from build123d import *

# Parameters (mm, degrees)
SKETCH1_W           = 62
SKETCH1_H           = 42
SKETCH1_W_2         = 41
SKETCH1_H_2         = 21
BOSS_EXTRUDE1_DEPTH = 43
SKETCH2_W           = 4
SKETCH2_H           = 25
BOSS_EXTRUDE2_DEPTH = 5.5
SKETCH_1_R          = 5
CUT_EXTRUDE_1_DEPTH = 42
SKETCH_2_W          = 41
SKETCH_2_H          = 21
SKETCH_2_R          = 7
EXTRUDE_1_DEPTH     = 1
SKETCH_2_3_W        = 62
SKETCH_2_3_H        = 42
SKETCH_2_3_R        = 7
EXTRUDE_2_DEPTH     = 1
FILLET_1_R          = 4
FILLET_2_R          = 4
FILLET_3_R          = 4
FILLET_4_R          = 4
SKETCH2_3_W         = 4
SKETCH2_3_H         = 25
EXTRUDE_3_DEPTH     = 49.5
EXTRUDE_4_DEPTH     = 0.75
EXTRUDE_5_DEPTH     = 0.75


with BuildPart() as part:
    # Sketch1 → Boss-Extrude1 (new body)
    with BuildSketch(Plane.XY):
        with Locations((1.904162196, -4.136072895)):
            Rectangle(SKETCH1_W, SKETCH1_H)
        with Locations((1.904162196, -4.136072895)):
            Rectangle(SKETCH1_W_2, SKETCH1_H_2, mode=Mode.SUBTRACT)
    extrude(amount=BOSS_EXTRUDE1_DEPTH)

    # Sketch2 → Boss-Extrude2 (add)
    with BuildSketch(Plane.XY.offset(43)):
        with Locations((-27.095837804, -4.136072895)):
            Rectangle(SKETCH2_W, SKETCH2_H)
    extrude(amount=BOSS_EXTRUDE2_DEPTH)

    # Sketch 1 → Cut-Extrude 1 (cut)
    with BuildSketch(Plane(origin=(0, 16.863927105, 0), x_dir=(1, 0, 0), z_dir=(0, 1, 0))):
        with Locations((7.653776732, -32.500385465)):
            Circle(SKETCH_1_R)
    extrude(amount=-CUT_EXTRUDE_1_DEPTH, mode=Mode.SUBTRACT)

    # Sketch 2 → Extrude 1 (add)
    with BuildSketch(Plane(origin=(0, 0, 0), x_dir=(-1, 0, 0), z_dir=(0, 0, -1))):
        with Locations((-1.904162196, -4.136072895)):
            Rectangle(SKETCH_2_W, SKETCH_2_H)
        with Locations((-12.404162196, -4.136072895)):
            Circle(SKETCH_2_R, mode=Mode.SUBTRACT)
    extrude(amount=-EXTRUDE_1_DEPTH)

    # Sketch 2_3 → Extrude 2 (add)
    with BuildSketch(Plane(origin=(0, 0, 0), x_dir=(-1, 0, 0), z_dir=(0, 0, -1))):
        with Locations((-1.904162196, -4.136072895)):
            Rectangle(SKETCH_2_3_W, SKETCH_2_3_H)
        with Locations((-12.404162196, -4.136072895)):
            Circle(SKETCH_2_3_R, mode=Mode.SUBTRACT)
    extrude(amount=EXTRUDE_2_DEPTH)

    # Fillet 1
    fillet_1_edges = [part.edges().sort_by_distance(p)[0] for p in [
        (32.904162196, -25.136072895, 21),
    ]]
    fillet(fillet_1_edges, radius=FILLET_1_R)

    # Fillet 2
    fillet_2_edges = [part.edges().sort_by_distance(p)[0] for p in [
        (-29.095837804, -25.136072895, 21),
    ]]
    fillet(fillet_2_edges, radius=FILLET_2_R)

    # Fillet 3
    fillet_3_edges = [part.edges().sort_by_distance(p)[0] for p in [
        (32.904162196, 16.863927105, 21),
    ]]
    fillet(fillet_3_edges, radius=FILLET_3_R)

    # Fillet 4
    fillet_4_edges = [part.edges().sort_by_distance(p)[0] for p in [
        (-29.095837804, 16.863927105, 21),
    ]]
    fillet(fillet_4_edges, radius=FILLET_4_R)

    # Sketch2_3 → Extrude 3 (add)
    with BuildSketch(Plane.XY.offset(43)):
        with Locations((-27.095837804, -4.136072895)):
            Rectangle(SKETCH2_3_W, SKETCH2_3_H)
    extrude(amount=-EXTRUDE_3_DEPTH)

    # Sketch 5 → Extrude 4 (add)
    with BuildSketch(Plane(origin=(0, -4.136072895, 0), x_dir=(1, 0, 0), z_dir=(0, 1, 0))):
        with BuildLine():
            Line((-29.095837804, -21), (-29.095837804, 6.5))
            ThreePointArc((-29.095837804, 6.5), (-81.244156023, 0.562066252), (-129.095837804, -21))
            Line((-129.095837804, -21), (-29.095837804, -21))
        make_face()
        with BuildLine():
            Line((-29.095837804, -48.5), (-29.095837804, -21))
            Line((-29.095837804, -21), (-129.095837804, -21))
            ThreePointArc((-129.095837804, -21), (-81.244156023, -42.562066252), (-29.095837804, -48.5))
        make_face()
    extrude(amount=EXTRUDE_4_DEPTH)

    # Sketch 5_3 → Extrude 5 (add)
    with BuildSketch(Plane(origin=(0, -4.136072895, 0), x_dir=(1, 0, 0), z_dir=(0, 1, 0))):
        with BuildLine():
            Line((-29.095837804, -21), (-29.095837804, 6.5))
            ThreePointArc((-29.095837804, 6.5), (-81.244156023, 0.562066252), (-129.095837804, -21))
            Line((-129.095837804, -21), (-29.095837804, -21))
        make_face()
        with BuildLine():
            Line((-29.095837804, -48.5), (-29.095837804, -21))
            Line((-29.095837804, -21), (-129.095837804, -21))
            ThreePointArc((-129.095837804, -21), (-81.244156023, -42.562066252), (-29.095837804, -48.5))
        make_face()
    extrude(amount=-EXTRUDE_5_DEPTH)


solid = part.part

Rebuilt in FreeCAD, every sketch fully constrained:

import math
import FreeCAD as App
import Part
import Sketcher

V = App.Vector


def edges_at(feature, points):
    """Names of the edges that pass closest to the given points."""
    edges = feature.Shape.Edges
    near = lambda p: min(range(len(edges)), key=lambda i: edges[i].distToShape(Part.Vertex(*p))[0])
    return sorted({f"Edge{near(p) + 1}" for p in points})

doc = App.newDocument("Part")
body = doc.addObject("PartDesign::Body", "Body")

# Sketch on XY plane
sketch1 = body.newObject("Sketcher::SketchObject", "Sketch")
sketch1.AttachmentSupport = (doc.getObject("XY_Plane"), [""])
sketch1.MapMode = "FlatFace"
sketch1.addGeometry([
    Part.LineSegment(V(-29, 17, 0), V(-29, -25, 0)),  # 0
    Part.LineSegment(V(-29, -25, 0), V(33, -25, 0)),  # 1
    Part.LineSegment(V(33, -25, 0), V(33, 17, 0)),  # 2
    Part.LineSegment(V(33, 17, 0), V(-29, 17, 0)),  # 3
    Part.LineSegment(V(22, -15, 0), V(-19, -15, 0)),  # 4
    Part.LineSegment(V(-19, -15, 0), V(-19, 6, 0)),  # 5
    Part.LineSegment(V(-19, 6, 0), V(22, 6, 0)),  # 6
    Part.LineSegment(V(22, 6, 0), V(22, -15, 0)),  # 7
], False)
sketch1.addConstraint([
    Sketcher.Constraint("Coincident", 0, 2, 1, 1),
    Sketcher.Constraint("Coincident", 1, 2, 2, 1),
    Sketcher.Constraint("Coincident", 2, 2, 3, 1),
    Sketcher.Constraint("Coincident", 3, 2, 0, 1),
    Sketcher.Constraint("Coincident", 4, 2, 5, 1),
    Sketcher.Constraint("Coincident", 5, 2, 6, 1),
    Sketcher.Constraint("Coincident", 6, 2, 7, 1),
    Sketcher.Constraint("Coincident", 7, 2, 4, 1),
    Sketcher.Constraint("Vertical", 0),
    Sketcher.Constraint("Horizontal", 1),
    Sketcher.Constraint("Vertical", 2),
    Sketcher.Constraint("Horizontal", 3),
    Sketcher.Constraint("Horizontal", 4),
    Sketcher.Constraint("Vertical", 5),
    Sketcher.Constraint("Horizontal", 6),
    Sketcher.Constraint("Vertical", 7),
    Sketcher.Constraint("DistanceX", 1, 1, 1, 2, 62.0),
    Sketcher.Constraint("DistanceX", 4, 2, 4, 1, 41.0),
    Sketcher.Constraint("DistanceY", 0, 2, 0, 1, 42.0),
    Sketcher.Constraint("DistanceY", 5, 1, 5, 2, 21.0),
    Sketcher.Constraint("DistanceX", 0, 2, 4, 2, 10.5),
    Sketcher.Constraint("DistanceY", 0, 2, 4, 2, 10.5),
    Sketcher.Constraint("DistanceX", 0, 2, -1, 1, 29.095838),
    Sketcher.Constraint("DistanceY", 0, 2, -1, 1, 25.136073),
])
pad1 = body.newObject("PartDesign::Pad", "Pad")
pad1.Profile = sketch1
pad1.Length = 43

# Sketch on XY plane
sketch2 = body.newObject("Sketcher::SketchObject", "Sketch001")
sketch2.AttachmentSupport = (doc.getObject("XY_Plane"), [""])
sketch2.MapMode = "FlatFace"
sketch2.AttachmentOffset = App.Placement(V(0, 0, 43), App.Rotation())
sketch2.addGeometry([
    Part.LineSegment(V(-29.1, 8.4, 0), V(-29.1, -16.6, 0)),
    Part.LineSegment(V(-29.1, -16.6, 0), V(-25.1, -16.6, 0)),
    Part.LineSegment(V(-25.1, -16.6, 0), V(-25.1, 8.4, 0)),
    Part.LineSegment(V(-25.1, 8.4, 0), V(-29.1, 8.4, 0)),
], False)
sketch2.addConstraint([
    Sketcher.Constraint("Coincident", 0, 2, 1, 1),
    Sketcher.Constraint("Coincident", 1, 2, 2, 1),
    Sketcher.Constraint("Coincident", 2, 2, 3, 1),
    Sketcher.Constraint("Coincident", 3, 2, 0, 1),
    Sketcher.Constraint("Vertical", 0),
    Sketcher.Constraint("Horizontal", 1),
    Sketcher.Constraint("Vertical", 2),
    Sketcher.Constraint("Horizontal", 3),
    Sketcher.Constraint("DistanceX", 1, 1, 1, 2, 4.0),
    Sketcher.Constraint("DistanceY", 0, 2, 0, 1, 25.0),
    Sketcher.Constraint("DistanceX", 0, 2, -1, 1, 29.095838),
    Sketcher.Constraint("DistanceY", 0, 2, -1, 1, 16.636073),
])
pad2 = body.newObject("PartDesign::Pad", "Pad001")
pad2.Profile = sketch2
pad2.Length = 5.5

# Sketch on XZ plane
sketch3 = body.newObject("Sketcher::SketchObject", "Sketch002")
sketch3.AttachmentSupport = (doc.getObject("XZ_Plane"), [""])
sketch3.MapMode = "FlatFace"
sketch3.AttachmentOffset = App.Placement(V(0, 0, -16.863927), App.Rotation())
sketch3.addGeometry(Part.Circle(V(8, 33, 0), V(0, 0, 1), 5), False)
sketch3.addConstraint([
    Sketcher.Constraint("Diameter", 0, 10.0),
    Sketcher.Constraint("DistanceX", -1, 1, 0, 3, 7.653777),
    Sketcher.Constraint("DistanceY", -1, 1, 0, 3, 32.500385),
])
pocket1 = body.newObject("PartDesign::Pocket", "Pocket")
pocket1.Profile = sketch3
pocket1.Length = 42
pocket1.Reversed = True

# Sketch on XY plane
sketch4 = body.newObject("Sketcher::SketchObject", "Sketch003")
sketch4.AttachmentSupport = (doc.getObject("XY_Plane"), [""])
sketch4.MapMode = "FlatFace"
sketch4.addGeometry([
    Part.LineSegment(V(22, 6, 0), V(22, -15, 0)),  # 0
    Part.LineSegment(V(22, -15, 0), V(-19, -15, 0)),  # 1
    Part.LineSegment(V(-19, -15, 0), V(-19, 6, 0)),  # 2
    Part.LineSegment(V(-19, 6, 0), V(22, 6, 0)),  # 3
    Part.Circle(V(12, -4, 0), V(0, 0, 1), 7),  # 4
], False)
sketch4.addConstraint([
    Sketcher.Constraint("Coincident", 0, 2, 1, 1),
    Sketcher.Constraint("Coincident", 1, 2, 2, 1),
    Sketcher.Constraint("Coincident", 2, 2, 3, 1),
    Sketcher.Constraint("Coincident", 3, 2, 0, 1),
    Sketcher.Constraint("Vertical", 0),
    Sketcher.Constraint("Horizontal", 1),
    Sketcher.Constraint("Vertical", 2),
    Sketcher.Constraint("Horizontal", 3),
    Sketcher.Constraint("Diameter", 4, 14.0),
    Sketcher.Constraint("DistanceX", 1, 2, 1, 1, 41.0),
    Sketcher.Constraint("DistanceY", 0, 2, 0, 1, 21.0),
    Sketcher.Constraint("DistanceX", 4, 3, 0, 2, 10.0),
    Sketcher.Constraint("DistanceY", 0, 2, 4, 3, 10.5),
    Sketcher.Constraint("DistanceX", -1, 1, 4, 3, 12.404162),
    Sketcher.Constraint("DistanceY", 4, 3, -1, 1, 4.136073),
])
pad3 = body.newObject("PartDesign::Pad", "Pad002")
pad3.Profile = sketch4
pad3.Length = 1

# Sketch on XY plane
sketch5 = body.newObject("Sketcher::SketchObject", "Sketch004")
sketch5.AttachmentSupport = (doc.getObject("XY_Plane"), [""])
sketch5.MapMode = "FlatFace"
sketch5.addGeometry([
    Part.LineSegment(V(33, 17, 0), V(33, -25, 0)),  # 0
    Part.LineSegment(V(33, -25, 0), V(-29, -25, 0)),  # 1
    Part.LineSegment(V(-29, -25, 0), V(-29, 17, 0)),  # 2
    Part.LineSegment(V(-29, 17, 0), V(33, 17, 0)),  # 3
    Part.Circle(V(12, -4, 0), V(0, 0, 1), 7),  # 4
], False)
sketch5.addConstraint([
    Sketcher.Constraint("Coincident", 0, 2, 1, 1),
    Sketcher.Constraint("Coincident", 1, 2, 2, 1),
    Sketcher.Constraint("Coincident", 2, 2, 3, 1),
    Sketcher.Constraint("Coincident", 3, 2, 0, 1),
    Sketcher.Constraint("Vertical", 0),
    Sketcher.Constraint("Horizontal", 1),
    Sketcher.Constraint("Vertical", 2),
    Sketcher.Constraint("Horizontal", 3),
    Sketcher.Constraint("Diameter", 4, 14.0),
    Sketcher.Constraint("DistanceX", 1, 2, 1, 1, 62.0),
    Sketcher.Constraint("DistanceY", 0, 2, 0, 1, 42.0),
    Sketcher.Constraint("DistanceY", 0, 2, 4, 3, 21.0),
    Sketcher.Constraint("DistanceX", 4, 3, 0, 2, 20.5),
    Sketcher.Constraint("DistanceX", -1, 1, 4, 3, 12.404162),
    Sketcher.Constraint("DistanceY", 4, 3, -1, 1, 4.136073),
])
pad4 = body.newObject("PartDesign::Pad", "Pad003")
pad4.Profile = sketch5
pad4.Length = 1
pad4.Reversed = True
doc.recompute()

fillet = body.newObject("PartDesign::Fillet", "Fillet")
fillet.Base = (pad4, edges_at(pad4, [(32.904, -25.136, 21)]))
fillet.Radius = 4
doc.recompute()

fillet2 = body.newObject("PartDesign::Fillet", "Fillet001")
fillet2.Base = (fillet, edges_at(fillet, [(-29.096, -25.136, 21)]))
fillet2.Radius = 4
doc.recompute()

fillet3 = body.newObject("PartDesign::Fillet", "Fillet002")
fillet3.Base = (fillet2, edges_at(fillet2, [(32.904, 16.864, 21)]))
fillet3.Radius = 4
doc.recompute()

fillet4 = body.newObject("PartDesign::Fillet", "Fillet003")
fillet4.Base = (fillet3, edges_at(fillet3, [(-29.096, 16.864, 21)]))
fillet4.Radius = 4

# Sketch on XY plane
sketch6 = body.newObject("Sketcher::SketchObject", "Sketch005")
sketch6.AttachmentSupport = (doc.getObject("XY_Plane"), [""])
sketch6.MapMode = "FlatFace"
sketch6.AttachmentOffset = App.Placement(V(0, 0, 43), App.Rotation())
sketch6.addGeometry([
    Part.LineSegment(V(-29.1, 8.4, 0), V(-29.1, -16.6, 0)),
    Part.LineSegment(V(-29.1, -16.6, 0), V(-25.1, -16.6, 0)),
    Part.LineSegment(V(-25.1, -16.6, 0), V(-25.1, 8.4, 0)),
    Part.LineSegment(V(-25.1, 8.4, 0), V(-29.1, 8.4, 0)),
], False)
sketch6.addConstraint([
    Sketcher.Constraint("Coincident", 0, 2, 1, 1),
    Sketcher.Constraint("Coincident", 1, 2, 2, 1),
    Sketcher.Constraint("Coincident", 2, 2, 3, 1),
    Sketcher.Constraint("Coincident", 3, 2, 0, 1),
    Sketcher.Constraint("Vertical", 0),
    Sketcher.Constraint("Horizontal", 1),
    Sketcher.Constraint("Vertical", 2),
    Sketcher.Constraint("Horizontal", 3),
    Sketcher.Constraint("DistanceX", 1, 1, 1, 2, 4.0),
    Sketcher.Constraint("DistanceY", 0, 2, 0, 1, 25.0),
    Sketcher.Constraint("DistanceX", 0, 2, -1, 1, 29.095838),
    Sketcher.Constraint("DistanceY", 0, 2, -1, 1, 16.636073),
])
pad5 = body.newObject("PartDesign::Pad", "Pad004")
pad5.Profile = sketch6
pad5.Length = 49.5
pad5.Reversed = True

# Sketch on XZ plane
sketch7 = body.newObject("Sketcher::SketchObject", "Sketch006")
sketch7.AttachmentSupport = (doc.getObject("XZ_Plane"), [""])
sketch7.MapMode = "FlatFace"
sketch7.AttachmentOffset = App.Placement(V(0, 0, 4.136073), App.Rotation())
sketch7.addGeometry([
    Part.ArcOfCircle(Part.Circle(V(-36, 163, 0), V(0, 0, 1), 170), math.radians(-123), math.radians(-88)),
    Part.ArcOfCircle(Part.Circle(V(-36, -121, 0), V(0, 0, 1), 170), math.radians(88), math.radians(123)),
    Part.LineSegment(V(-29, 48, 0), V(-29, -6, 0)),
], False)
sketch7.addConstraint([
    Sketcher.Constraint("Coincident", 0, 1, 1, 2),
    Sketcher.Constraint("Coincident", 1, 1, 2, 1),
    Sketcher.Constraint("Coincident", 2, 2, 0, 2),
    Sketcher.Constraint("Vertical", 2),
    Sketcher.Constraint("Equal", 0, 1),
    Sketcher.Constraint("Vertical", 0, 3, 1, 3),
    Sketcher.Constraint("Radius", 0, 170.0),
    Sketcher.Constraint("DistanceY", 2, 2, 2, 1, 55.0),
    Sketcher.Constraint("DistanceY", -1, 1, 0, 1, 21.0),
    Sketcher.Constraint("DistanceX", 0, 1, 1, 1, 100.0),
    Sketcher.Constraint("DistanceX", 0, 3, -1, 1, 36.167554),
])
pad6 = body.newObject("PartDesign::Pad", "Pad005")
pad6.Profile = sketch7
pad6.Length = 0.75
pad6.Reversed = True

# Sketch on XZ plane
sketch8 = body.newObject("Sketcher::SketchObject", "Sketch007")
sketch8.AttachmentSupport = (doc.getObject("XZ_Plane"), [""])
sketch8.MapMode = "FlatFace"
sketch8.AttachmentOffset = App.Placement(V(0, 0, 4.136073), App.Rotation())
sketch8.addGeometry([
    Part.ArcOfCircle(Part.Circle(V(-36, 163, 0), V(0, 0, 1), 170), math.radians(-123), math.radians(-88)),
    Part.ArcOfCircle(Part.Circle(V(-36, -121, 0), V(0, 0, 1), 170), math.radians(88), math.radians(123)),
    Part.LineSegment(V(-29, 48, 0), V(-29, -6, 0)),
], False)
sketch8.addConstraint([
    Sketcher.Constraint("Coincident", 0, 1, 1, 2),
    Sketcher.Constraint("Coincident", 1, 1, 2, 1),
    Sketcher.Constraint("Coincident", 2, 2, 0, 2),
    Sketcher.Constraint("Vertical", 2),
    Sketcher.Constraint("Equal", 0, 1),
    Sketcher.Constraint("Vertical", 0, 3, 1, 3),
    Sketcher.Constraint("Radius", 0, 170.0),
    Sketcher.Constraint("DistanceY", 2, 2, 2, 1, 55.0),
    Sketcher.Constraint("DistanceY", -1, 1, 0, 1, 21.0),
    Sketcher.Constraint("DistanceX", 0, 1, 1, 1, 100.0),
    Sketcher.Constraint("DistanceX", 0, 3, -1, 1, 36.167554),
])
pad7 = body.newObject("PartDesign::Pad", "Pad006")
pad7.Profile = sketch8
pad7.Length = 0.75

doc.recompute()
